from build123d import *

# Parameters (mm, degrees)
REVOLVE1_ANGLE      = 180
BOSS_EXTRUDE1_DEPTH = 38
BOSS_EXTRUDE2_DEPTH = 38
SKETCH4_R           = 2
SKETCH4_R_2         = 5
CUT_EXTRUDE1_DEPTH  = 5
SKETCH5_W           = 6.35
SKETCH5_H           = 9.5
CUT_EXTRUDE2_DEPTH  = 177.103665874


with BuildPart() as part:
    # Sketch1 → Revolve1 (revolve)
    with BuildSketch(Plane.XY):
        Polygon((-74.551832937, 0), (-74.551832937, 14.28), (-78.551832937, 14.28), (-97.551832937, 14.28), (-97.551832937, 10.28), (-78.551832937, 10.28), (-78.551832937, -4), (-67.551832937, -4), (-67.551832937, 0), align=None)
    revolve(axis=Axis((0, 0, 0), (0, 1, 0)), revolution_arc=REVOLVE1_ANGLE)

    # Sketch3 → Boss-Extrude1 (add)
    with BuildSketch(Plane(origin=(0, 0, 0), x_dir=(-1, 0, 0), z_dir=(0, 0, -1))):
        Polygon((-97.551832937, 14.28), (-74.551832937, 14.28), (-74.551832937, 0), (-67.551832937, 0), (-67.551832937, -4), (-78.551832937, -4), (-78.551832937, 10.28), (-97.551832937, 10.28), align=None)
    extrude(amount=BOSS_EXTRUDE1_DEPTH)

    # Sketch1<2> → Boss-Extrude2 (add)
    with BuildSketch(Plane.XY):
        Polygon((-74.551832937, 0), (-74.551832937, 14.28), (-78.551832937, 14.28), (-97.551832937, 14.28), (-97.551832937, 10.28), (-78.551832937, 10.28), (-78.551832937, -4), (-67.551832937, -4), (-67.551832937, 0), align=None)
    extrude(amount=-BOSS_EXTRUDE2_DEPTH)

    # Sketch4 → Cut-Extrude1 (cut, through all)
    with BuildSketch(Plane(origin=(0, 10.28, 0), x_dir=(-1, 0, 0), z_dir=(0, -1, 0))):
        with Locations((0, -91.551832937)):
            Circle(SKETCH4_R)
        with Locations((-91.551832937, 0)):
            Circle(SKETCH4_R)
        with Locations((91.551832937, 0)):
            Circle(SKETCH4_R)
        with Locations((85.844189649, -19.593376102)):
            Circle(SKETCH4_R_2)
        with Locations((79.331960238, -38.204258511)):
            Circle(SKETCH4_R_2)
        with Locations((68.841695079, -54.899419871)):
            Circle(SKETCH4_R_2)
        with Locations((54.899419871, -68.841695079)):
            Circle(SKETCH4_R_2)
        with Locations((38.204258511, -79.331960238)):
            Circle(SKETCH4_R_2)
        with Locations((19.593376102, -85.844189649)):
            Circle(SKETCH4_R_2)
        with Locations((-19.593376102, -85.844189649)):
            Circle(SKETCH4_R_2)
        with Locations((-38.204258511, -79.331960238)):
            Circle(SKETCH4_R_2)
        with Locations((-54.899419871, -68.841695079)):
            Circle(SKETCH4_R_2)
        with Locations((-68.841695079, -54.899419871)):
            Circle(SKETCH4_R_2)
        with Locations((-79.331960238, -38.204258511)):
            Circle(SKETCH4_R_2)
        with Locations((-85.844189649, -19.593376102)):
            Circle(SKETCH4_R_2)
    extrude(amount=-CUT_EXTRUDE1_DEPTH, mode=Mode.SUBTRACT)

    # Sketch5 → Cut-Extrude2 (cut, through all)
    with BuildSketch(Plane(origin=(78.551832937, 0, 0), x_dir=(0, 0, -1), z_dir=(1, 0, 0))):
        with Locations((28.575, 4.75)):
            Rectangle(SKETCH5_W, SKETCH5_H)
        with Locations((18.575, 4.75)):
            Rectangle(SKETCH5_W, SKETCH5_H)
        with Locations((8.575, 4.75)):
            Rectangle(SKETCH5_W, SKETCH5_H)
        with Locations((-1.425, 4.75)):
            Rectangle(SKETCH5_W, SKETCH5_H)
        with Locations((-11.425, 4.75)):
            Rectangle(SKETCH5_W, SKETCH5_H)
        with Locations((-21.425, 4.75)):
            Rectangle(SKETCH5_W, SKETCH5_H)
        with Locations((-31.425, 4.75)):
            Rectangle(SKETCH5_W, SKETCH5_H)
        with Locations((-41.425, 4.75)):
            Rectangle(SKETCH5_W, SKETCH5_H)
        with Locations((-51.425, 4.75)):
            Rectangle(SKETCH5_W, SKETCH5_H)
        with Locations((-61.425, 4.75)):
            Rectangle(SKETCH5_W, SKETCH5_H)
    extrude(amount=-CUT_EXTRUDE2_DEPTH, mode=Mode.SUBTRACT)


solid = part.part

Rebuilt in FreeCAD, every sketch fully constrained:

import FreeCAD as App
import Part
import Sketcher
from FreeCAD import Vector
Q = App.Units.Quantity


def add_polygon(sketch, points):
    """Adds a closed chain of lines whose ends are joined by coincident constraints."""
    first, n = sketch.GeometryCount, len(points)
    for a, b in zip(points, points[1:] + points[:1]):
        sketch.addGeometry(Part.LineSegment(App.Vector(*a, 0), App.Vector(*b, 0)), False)
    for i in range(n):
        sketch.addConstraint(Sketcher.Constraint("Coincident", first + i, 2, first + (i + 1) % n, 1))

doc = App.newDocument("Part")
body = doc.addObject("PartDesign::Body", "Body")

sketch1 = doc.addObject("Sketcher::SketchObject", "Sketch")
body.addObject(sketch1)
sketch1.AttachmentSupport = (doc.XY_Plane, [""])
sketch1.MapMode = "FlatFace"
add_polygon(sketch1, [(-74.6, 0), (-74.6, 14.3), (-97.6, 14.3), (-97.6, 10.3), (-78.6, 10.3), (-78.6, -4), (-67.6, -4), (-67.6, 0)])
sketch1.addConstraint(Sketcher.Constraint("Vertical", 0))
sketch1.addConstraint(Sketcher.Constraint("Horizontal", 1))
sketch1.addConstraint(Sketcher.Constraint("Vertical", 2))
sketch1.addConstraint(Sketcher.Constraint("Horizontal", 3))
sketch1.addConstraint(Sketcher.Constraint("Vertical", 4))
sketch1.addConstraint(Sketcher.Constraint("Horizontal", 5))
sketch1.addConstraint(Sketcher.Constraint("Vertical", 6))
sketch1.addConstraint(Sketcher.Constraint("Horizontal", 7))
sketch1.addConstraint(Sketcher.Constraint("PointOnObject", 6, 2, -1))
sketch1.addConstraint(Sketcher.Constraint("Equal", 0, 4))
sketch1.addConstraint(Sketcher.Constraint("DistanceX", 1, 2, 1, 1, Q("23 mm")))
sketch1.addConstraint(Sketcher.Constraint("DistanceX", 3, 1, 3, 2, Q("19 mm")))
sketch1.addConstraint(Sketcher.Constraint("DistanceX", 5, 1, 5, 2, Q("11 mm")))
sketch1.addConstraint(Sketcher.Constraint("DistanceY", 2, 2, 2, 1, Q("4 mm")))
sketch1.addConstraint(Sketcher.Constraint("DistanceY", 0, 1, 0, 2, Q("14.28 mm")))
sketch1.addConstraint(Sketcher.Constraint("DistanceX", 0, 2, -1, 1, Q("74.551833 mm")))
revolution = doc.addObject("PartDesign::Revolution", "Revolution")
body.addObject(revolution)
revolution.Profile = sketch1
revolution.ReferenceAxis = (sketch1, ["V_Axis"])
revolution.Angle = 180

sketch2 = doc.addObject("Sketcher::SketchObject", "Sketch001")
body.addObject(sketch2)
sketch2.AttachmentSupport = (doc.XY_Plane, [""])
sketch2.MapMode = "FlatFace"
add_polygon(sketch2, [(74.6, 14.3), (97.6, 14.3), (97.6, 10.3), (78.6, 10.3), (78.6, -4), (67.6, -4), (67.6, 0), (74.6, 0)])
sketch2.addConstraint(Sketcher.Constraint("Horizontal", 0))
sketch2.addConstraint(Sketcher.Constraint("Vertical", 1))
sketch2.addConstraint(Sketcher.Constraint("Horizontal", 2))
sketch2.addConstraint(Sketcher.Constraint("Vertical", 3))
sketch2.addConstraint(Sketcher.Constraint("Horizontal", 4))
sketch2.addConstraint(Sketcher.Constraint("Vertical", 5))
sketch2.addConstraint(Sketcher.Constraint("Horizontal", 6))
sketch2.addConstraint(Sketcher.Constraint("Vertical", 7))
sketch2.addConstraint(Sketcher.Constraint("PointOnObject", 5, 2, -1))
sketch2.addConstraint(Sketcher.Constraint("Equal", 1, 5))
sketch2.addConstraint(Sketcher.Constraint("DistanceX", 0, 1, 0, 2, Q("23 mm")))
sketch2.addConstraint(Sketcher.Constraint("DistanceX", 2, 2, 2, 1, Q("19 mm")))
sketch2.addConstraint(Sketcher.Constraint("DistanceX", 4, 2, 4, 1, Q("11 mm")))
sketch2.addConstraint(Sketcher.Constraint("DistanceY", 1, 2, 1, 1, Q("4 mm")))
sketch2.addConstraint(Sketcher.Constraint("DistanceY", 3, 2, 3, 1, Q("14.28 mm")))
sketch2.addConstraint(Sketcher.Constraint("DistanceX", -1, 1, 0, 2, Q("97.551833 mm")))
pad1 = doc.addObject("PartDesign::Pad", "Pad")
body.addObject(pad1)
pad1.Profile = sketch2
pad1.Length = 38
pad1.Reversed = True

sketch3 = doc.addObject("Sketcher::SketchObject", "Sketch002")
body.addObject(sketch3)
sketch3.AttachmentSupport = (doc.XY_Plane, [""])
sketch3.MapMode = "FlatFace"
add_polygon(sketch3, [(-74.6, 0), (-74.6, 14.3), (-97.6, 14.3), (-97.6, 10.3), (-78.6, 10.3), (-78.6, -4), (-67.6, -4), (-67.6, 0)])
sketch3.addConstraint(Sketcher.Constraint("Vertical", 0))
sketch3.addConstraint(Sketcher.Constraint("Horizontal", 1))
sketch3.addConstraint(Sketcher.Constraint("Vertical", 2))
sketch3.addConstraint(Sketcher.Constraint("Horizontal", 3))
sketch3.addConstraint(Sketcher.Constraint("Vertical", 4))
sketch3.addConstraint(Sketcher.Constraint("Horizontal", 5))
sketch3.addConstraint(Sketcher.Constraint("Vertical", 6))
sketch3.addConstraint(Sketcher.Constraint("Horizontal", 7))
sketch3.addConstraint(Sketcher.Constraint("PointOnObject", 6, 2, -1))
sketch3.addConstraint(Sketcher.Constraint("Equal", 0, 4))
sketch3.addConstraint(Sketcher.Constraint("DistanceX", 1, 2, 1, 1, Q("23 mm")))
sketch3.addConstraint(Sketcher.Constraint("DistanceX", 3, 1, 3, 2, Q("19 mm")))
sketch3.addConstraint(Sketcher.Constraint("DistanceX", 5, 1, 5, 2, Q("11 mm")))
sketch3.addConstraint(Sketcher.Constraint("DistanceY", 2, 2, 2, 1, Q("4 mm")))
sketch3.addConstraint(Sketcher.Constraint("DistanceY", 0, 1, 0, 2, Q("14.28 mm")))
sketch3.addConstraint(Sketcher.Constraint("DistanceX", 0, 2, -1, 1, Q("74.551833 mm")))
pad2 = doc.addObject("PartDesign::Pad", "Pad001")
body.addObject(pad2)
pad2.Profile = sketch3
pad2.Length = 38
pad2.Reversed = True

sketch4 = doc.addObject("Sketcher::SketchObject", "Sketch003")
body.addObject(sketch4)
sketch4.AttachmentSupport = (doc.XZ_Plane, [""])
sketch4.MapMode = "FlatFace"
sketch4.AttachmentOffset = App.Placement(Vector(0, 0, -10.28), App.Rotation())
sketch4.addGeometry(Part.Circle(Vector(0, 91.6, 0), Vector(0, 0, 1), 2), False)
sketch4.addGeometry(Part.Circle(Vector(91.6, 0, 0), Vector(0, 0, 1), 2), False)
sketch4.addGeometry(Part.Circle(Vector(-91.6, 0, 0), Vector(0, 0, 1), 2), False)
sketch4.addGeometry(Part.Circle(Vector(-85.8, 19.6, 0), Vector(0, 0, 1), 5), False)
sketch4.addGeometry(Part.Circle(Vector(-79.3, 38.2, 0), Vector(0, 0, 1), 5), False)
sketch4.addGeometry(Part.Circle(Vector(-68.8, 54.9, 0), Vector(0, 0, 1), 5), False)
sketch4.addGeometry(Part.Circle(Vector(-54.9, 68.8, 0), Vector(0, 0, 1), 5), False)
sketch4.addGeometry(Part.Circle(Vector(-38.2, 79.3, 0), Vector(0, 0, 1), 5), False)
sketch4.addGeometry(Part.Circle(Vector(-19.6, 85.8, 0), Vector(0, 0, 1), 5), False)
sketch4.addGeometry(Part.Circle(Vector(19.6, 85.8, 0), Vector(0, 0, 1), 5), False)
sketch4.addGeometry(Part.Circle(Vector(38.2, 79.3, 0), Vector(0, 0, 1), 5), False)
sketch4.addGeometry(Part.Circle(Vector(54.9, 68.8, 0), Vector(0, 0, 1), 5), False)
sketch4.addGeometry(Part.Circle(Vector(68.8, 54.9, 0), Vector(0, 0, 1), 5), False)
sketch4.addGeometry(Part.Circle(Vector(79.3, 38.2, 0), Vector(0, 0, 1), 5), False)
sketch4.addGeometry(Part.Circle(Vector(85.8, 19.6, 0), Vector(0, 0, 1), 5), False)
sketch4.addConstraint(Sketcher.Constraint("Equal", 0, 1))
sketch4.addConstraint(Sketcher.Constraint("Equal", 1, 2))
sketch4.addConstraint(Sketcher.Constraint("Equal", 3, 4))
sketch4.addConstraint(Sketcher.Constraint("Equal", 4, 5))
sketch4.addConstraint(Sketcher.Constraint("Equal", 5, 6))
sketch4.addConstraint(Sketcher.Constraint("Equal", 6, 7))
sketch4.addConstraint(Sketcher.Constraint("Equal", 7, 8))
sketch4.addConstraint(Sketcher.Constraint("Equal", 8, 9))
sketch4.addConstraint(Sketcher.Constraint("Equal", 9, 10))
sketch4.addConstraint(Sketcher.Constraint("Equal", 10, 11))
sketch4.addConstraint(Sketcher.Constraint("Equal", 11, 12))
sketch4.addConstraint(Sketcher.Constraint("Equal", 12, 13))
sketch4.addConstraint(Sketcher.Constraint("Equal", 13, 14))
sketch4.addConstraint(Sketcher.Constraint("Symmetric", 1, 3, 2, 3, -1, 1))
sketch4.addConstraint(Sketcher.Constraint("Symmetric", 8, 3, 9, 3, -2))
sketch4.addConstraint(Sketcher.Constraint("Symmetric", 7, 3, 10, 3, -2))
sketch4.addConstraint(Sketcher.Constraint("Symmetric", 6, 3, 11, 3, -2))
sketch4.addConstraint(Sketcher.Constraint("Symmetric", 5, 3, 12, 3, -2))
sketch4.addConstraint(Sketcher.Constraint("Symmetric", 4, 3, 13, 3, -2))
sketch4.addConstraint(Sketcher.Constraint("Symmetric", 3, 3, 14, 3, -2))
sketch4.addConstraint(Sketcher.Constraint("PointOnObject", 0, 3, -2))
sketch4.addConstraint(Sketcher.Constraint("PointOnObject", 1, 3, -1))
sketch4.addConstraint(Sketcher.Constraint("Diameter", 0, Q("4 mm")))
sketch4.addConstraint(Sketcher.Constraint("Diameter", 3, Q("10 mm")))
sketch4.addConstraint(Sketcher.Constraint("DistanceX", 4, 3, 7, 3, Q("41.127702 mm")))
sketch4.addConstraint(Sketcher.Constraint("DistanceY", 4, 3, 7, 3, Q("41.127702 mm")))
sketch4.addConstraint(Sketcher.Constraint("DistanceX", 3, 3, -1, 1, Q("85.84419 mm")))
sketch4.addConstraint(Sketcher.Constraint("DistanceX", 4, 3, -1, 1, Q("79.33196 mm")))
sketch4.addConstraint(Sketcher.Constraint("DistanceY", -1, 1, 4, 3, Q("38.204259 mm")))
sketch4.addConstraint(Sketcher.Constraint("DistanceY", -1, 1, 5, 3, Q("54.89942 mm")))
sketch4.addConstraint(Sketcher.Constraint("DistanceX", 6, 3, -1, 1, Q("54.89942 mm")))
sketch4.addConstraint(Sketcher.Constraint("DistanceY", -1, 1, 8, 3, Q("85.84419 mm")))
sketch4.addConstraint(Sketcher.Constraint("DistanceX", 5, 3, 1, 3, Q("160.393528 mm")))
sketch4.addConstraint(Sketcher.Constraint("DistanceY", 3, 3, 6, 3, Q("49.248319 mm")))
sketch4.addConstraint(Sketcher.Constraint("DistanceX", 5, 3, 8, 3, Q("49.248319 mm")))
sketch4.addConstraint(Sketcher.Constraint("DistanceX", 5, 3, 9, 3, Q("88.435071 mm")))
sketch4.addConstraint(Sketcher.Constraint("DistanceY", -1, 1, 0, 3, Q("91.551833 mm")))
sketch4.addConstraint(Sketcher.Constraint("DistanceY", -1, 1, 3, 3, Q("19.593376 mm")))
pocket1 = doc.addObject("PartDesign::Pocket", "Pocket")
body.addObject(pocket1)
pocket1.Profile = sketch4
pocket1.Type = "ThroughAll"

sketch5 = doc.addObject("Sketcher::SketchObject", "Sketch004")
body.addObject(sketch5)
sketch5.AttachmentSupport = (doc.YZ_Plane, [""])
sketch5.MapMode = "FlatFace"
sketch5.AttachmentOffset = App.Placement(Vector(0, 0, 78.551833), App.Rotation())
add_polygon(sketch5, [(10, -25), (0, -25), (0, -32), (10, -32)])
add_polygon(sketch5, [(10, -15), (0, -15), (0, -22), (10, -22)])
add_polygon(sketch5, [(10, -5), (0, -5), (0, -12), (10, -12)])
add_polygon(sketch5, [(10, 5), (0, 5), (0, -2), (10, -2)])
add_polygon(sketch5, [(10, 15), (0, 15), (0, 8), (10, 8)])
add_polygon(sketch5, [(10, 25), (0, 25), (0, 18), (10, 18)])
add_polygon(sketch5, [(10, 35), (0, 35), (0, 28), (10, 28)])
add_polygon(sketch5, [(10, 45), (0, 45), (0, 38), (10, 38)])
add_polygon(sketch5, [(10, 55), (0, 55), (0, 48), (10, 48)])
add_polygon(sketch5, [(10, 65), (0, 65), (0, 58), (10, 58)])
sketch5.addConstraint(Sketcher.Constraint("Horizontal", 0))
sketch5.addConstraint(Sketcher.Constraint("Vertical", 1))
sketch5.addConstraint(Sketcher.Constraint("Horizontal", 2))
sketch5.addConstraint(Sketcher.Constraint("Vertical", 3))
sketch5.addConstraint(Sketcher.Constraint("Horizontal", 4))
sketch5.addConstraint(Sketcher.Constraint("Vertical", 5))
sketch5.addConstraint(Sketcher.Constraint("Horizontal", 6))
sketch5.addConstraint(Sketcher.Constraint("Vertical", 7))
sketch5.addConstraint(Sketcher.Constraint("Horizontal", 8))
sketch5.addConstraint(Sketcher.Constraint("Vertical", 9))
sketch5.addConstraint(Sketcher.Constraint("Horizontal", 10))
sketch5.addConstraint(Sketcher.Constraint("Vertical", 11))
sketch5.addConstraint(Sketcher.Constraint("Horizontal", 12))
sketch5.addConstraint(Sketcher.Constraint("Vertical", 13))
sketch5.addConstraint(Sketcher.Constraint("Horizontal", 14))
sketch5.addConstraint(Sketcher.Constraint("Vertical", 15))
sketch5.addConstraint(Sketcher.Constraint("Horizontal", 16))
sketch5.addConstraint(Sketcher.Constraint("Vertical", 17))
sketch5.addConstraint(Sketcher.Constraint("Horizontal", 18))
sketch5.addConstraint(Sketcher.Constraint("Vertical", 19))
sketch5.addConstraint(Sketcher.Constraint("Horizontal", 20))
sketch5.addConstraint(Sketcher.Constraint("Vertical", 21))
sketch5.addConstraint(Sketcher.Constraint("Horizontal", 22))
sketch5.addConstraint(Sketcher.Constraint("Vertical", 23))
sketch5.addConstraint(Sketcher.Constraint("Horizontal", 24))
sketch5.addConstraint(Sketcher.Constraint("Vertical", 25))
sketch5.addConstraint(Sketcher.Constraint("Horizontal", 26))
sketch5.addConstraint(Sketcher.Constraint("Vertical", 27))
sketch5.addConstraint(Sketcher.Constraint("Horizontal", 28))
sketch5.addConstraint(Sketcher.Constraint("Vertical", 29))
sketch5.addConstraint(Sketcher.Constraint("Horizontal", 30))
sketch5.addConstraint(Sketcher.Constraint("Vertical", 31))
sketch5.addConstraint(Sketcher.Constraint("Horizontal", 32))
sketch5.addConstraint(Sketcher.Constraint("Vertical", 33))
sketch5.addConstraint(Sketcher.Constraint("Horizontal", 34))
sketch5.addConstraint(Sketcher.Constraint("Vertical", 35))
sketch5.addConstraint(Sketcher.Constraint("Horizontal", 36))
sketch5.addConstraint(Sketcher.Constraint("Vertical", 37))
sketch5.addConstraint(Sketcher.Constraint("Horizontal", 38))
sketch5.addConstraint(Sketcher.Constraint("Vertical", 39))
sketch5.addConstraint(Sketcher.Constraint("PointOnObject", 0, 2, -2))
sketch5.addConstraint(Sketcher.Constraint("PointOnObject", 4, 2, -2))
sketch5.addConstraint(Sketcher.Constraint("PointOnObject", 8, 2, -2))
sketch5.addConstraint(Sketcher.Constraint("PointOnObject", 12, 2, -2))
sketch5.addConstraint(Sketcher.Constraint("PointOnObject", 16, 2, -2))
sketch5.addConstraint(Sketcher.Constraint("PointOnObject", 20, 2, -2))
sketch5.addConstraint(Sketcher.Constraint("PointOnObject", 24, 2, -2))
sketch5.addConstraint(Sketcher.Constraint("PointOnObject", 28, 2, -2))
sketch5.addConstraint(Sketcher.Constraint("PointOnObject", 32, 2, -2))
sketch5.addConstraint(Sketcher.Constraint("PointOnObject", 36, 2, -2))
sketch5.addConstraint(Sketcher.Constraint("Vertical", 3, 2, 6, 2))
sketch5.addConstraint(Sketcher.Constraint("Vertical", 7, 2, 10, 2))
sketch5.addConstraint(Sketcher.Constraint("Vertical", 11, 2, 14, 2))
sketch5.addConstraint(Sketcher.Constraint("Vertical", 15, 2, 18, 2))
sketch5.addConstraint(Sketcher.Constraint("Vertical", 19, 2, 22, 2))
sketch5.addConstraint(Sketcher.Constraint("Vertical", 23, 2, 26, 2))
sketch5.addConstraint(Sketcher.Constraint("Vertical", 27, 2, 30, 2))
sketch5.addConstraint(Sketcher.Constraint("Vertical", 31, 2, 34, 2))
sketch5.addConstraint(Sketcher.Constraint("Vertical", 35, 2, 38, 2))
sketch5.addConstraint(Sketcher.Constraint("Equal", 3, 5))
sketch5.addConstraint(Sketcher.Constraint("Equal", 7, 9))
sketch5.addConstraint(Sketcher.Constraint("Equal", 11, 13))
sketch5.addConstraint(Sketcher.Constraint("Equal", 15, 17))
sketch5.addConstraint(Sketcher.Constraint("Equal", 19, 21))
sketch5.addConstraint(Sketcher.Constraint("Equal", 23, 25))
sketch5.addConstraint(Sketcher.Constraint("Equal", 27, 29))
sketch5.addConstraint(Sketcher.Constraint("Equal", 31, 33))
sketch5.addConstraint(Sketcher.Constraint("Equal", 35, 37))
sketch5.addConstraint(Sketcher.Constraint("DistanceX", 0, 2, 0, 1, Q("9.5 mm")))
sketch5.addConstraint(Sketcher.Constraint("DistanceY", 0, 2, 4, 2, Q("10 mm")))
sketch5.addConstraint(Sketcher.Constraint("DistanceY", 4, 2, 8, 2, Q("10 mm")))
sketch5.addConstraint(Sketcher.Constraint("DistanceY", 8, 2, 12, 2, Q("10 mm")))
sketch5.addConstraint(Sketcher.Constraint("DistanceY", 12, 2, 16, 2, Q("10 mm")))
sketch5.addConstraint(Sketcher.Constraint("DistanceY", 16, 2, 20, 2, Q("10 mm")))
sketch5.addConstraint(Sketcher.Constraint("DistanceY", 20, 2, 24, 2, Q("10 mm")))
sketch5.addConstraint(Sketcher.Constraint("DistanceY", 24, 2, 28, 2, Q("10 mm")))
sketch5.addConstraint(Sketcher.Constraint("DistanceY", 28, 2, 32, 2, Q("10 mm")))
sketch5.addConstraint(Sketcher.Constraint("DistanceY", 32, 2, 36, 2, Q("10 mm")))
sketch5.addConstraint(Sketcher.Constraint("DistanceY", 1, 2, 1, 1, Q("6.35 mm")))
sketch5.addConstraint(Sketcher.Constraint("DistanceY", 0, 2, -1, 1, Q("25.4 mm")))
pocket2 = doc.addObject("PartDesign::Pocket", "Pocket001")
body.addObject(pocket2)
pocket2.Profile = sketch5
pocket2.Type = "ThroughAll"

doc.recompute()
